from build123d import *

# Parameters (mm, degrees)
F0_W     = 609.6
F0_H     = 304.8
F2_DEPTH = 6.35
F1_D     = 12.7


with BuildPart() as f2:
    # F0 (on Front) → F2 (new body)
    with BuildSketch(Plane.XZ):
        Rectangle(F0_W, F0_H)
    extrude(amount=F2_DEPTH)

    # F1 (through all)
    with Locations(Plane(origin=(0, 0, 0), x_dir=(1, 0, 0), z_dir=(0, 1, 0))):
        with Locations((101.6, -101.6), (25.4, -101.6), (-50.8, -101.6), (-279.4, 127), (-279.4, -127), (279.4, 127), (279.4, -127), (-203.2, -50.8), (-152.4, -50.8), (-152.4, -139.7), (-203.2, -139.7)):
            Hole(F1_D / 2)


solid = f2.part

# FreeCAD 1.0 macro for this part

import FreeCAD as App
import Part
import Sketcher
Q = App.Units.Quantity

doc = App.newDocument("Part")
body = doc.addObject("PartDesign::Body", "Body")

sketch1 = body.newObject("Sketcher::SketchObject", "Sketch")
sketch1.AttachmentSupport = (doc.getObject("XZ_Plane"), [""])
sketch1.MapMode = "FlatFace"
sketch1.addGeometry(Part.LineSegment(App.Vector(-305, 152, 0), App.Vector(-305, -152, 0)), False)
sketch1.addGeometry(Part.LineSegment(App.Vector(-305, -152, 0), App.Vector(305, -152, 0)), False)
sketch1.addGeometry(Part.LineSegment(App.Vector(305, -152, 0), App.Vector(305, 152, 0)), False)
sketch1.addGeometry(Part.LineSegment(App.Vector(305, 152, 0), App.Vector(-305, 152, 0)), False)
sketch1.addConstraint(Sketcher.Constraint("Coincident", 0, 2, 1, 1))
sketch1.addConstraint(Sketcher.Constraint("Coincident", 1, 2, 2, 1))
sketch1.addConstraint(Sketcher.Constraint("Coincident", 2, 2, 3, 1))
sketch1.addConstraint(Sketcher.Constraint("Coincident", 3, 2, 0, 1))
sketch1.addConstraint(Sketcher.Constraint("Vertical", 0))
sketch1.addConstraint(Sketcher.Constraint("Horizontal", 1))
sketch1.addConstraint(Sketcher.Constraint("Vertical", 2))
sketch1.addConstraint(Sketcher.Constraint("Horizontal", 3))
sketch1.addConstraint(Sketcher.Constraint("Symmetric", 0, 2, 2, 2, -1, 1))
sketch1.addConstraint(Sketcher.Constraint("DistanceX", 1, 1, 1, 2, Q("24 in")))
sketch1.addConstraint(Sketcher.Constraint("DistanceY", 0, 2, 0, 1, Q("12 in")))
pad1 = body.newObject("PartDesign::Pad", "Pad")
pad1.Profile = sketch1
pad1.Length = Q("0.25 in")

sketch2 = body.newObject("Sketcher::SketchObject", "Sketch001")
sketch2.AttachmentSupport = (doc.getObject("XZ_Plane"), [""])
sketch2.MapMode = "FlatFace"
sketch2.addGeometry(Part.Circle(App.Vector(102, 102, 0), App.Vector(0, 0, 1), 6), False)
sketch2.addGeometry(Part.Circle(App.Vector(25, 102, 0), App.Vector(0, 0, 1), 6), False)
sketch2.addGeometry(Part.Circle(App.Vector(-51, 102, 0), App.Vector(0, 0, 1), 6), False)
sketch2.addGeometry(Part.Circle(App.Vector(-279, -127, 0), App.Vector(0, 0, 1), 6), False)
sketch2.addGeometry(Part.Circle(App.Vector(-279, 127, 0), App.Vector(0, 0, 1), 6), False)
sketch2.addGeometry(Part.Circle(App.Vector(279, -127, 0), App.Vector(0, 0, 1), 6), False)
sketch2.addGeometry(Part.Circle(App.Vector(279, 127, 0), App.Vector(0, 0, 1), 6), False)
sketch2.addGeometry(Part.Circle(App.Vector(-203, 51, 0), App.Vector(0, 0, 1), 6), False)
sketch2.addGeometry(Part.Circle(App.Vector(-152, 51, 0), App.Vector(0, 0, 1), 6), False)
sketch2.addGeometry(Part.Circle(App.Vector(-152, 140, 0), App.Vector(0, 0, 1), 6), False)
sketch2.addGeometry(Part.Circle(App.Vector(-203, 140, 0), App.Vector(0, 0, 1), 6), False)
sketch2.addConstraint(Sketcher.Constraint("Equal", 0, 1))
sketch2.addConstraint(Sketcher.Constraint("Equal", 1, 2))
sketch2.addConstraint(Sketcher.Constraint("Equal", 2, 3))
sketch2.addConstraint(Sketcher.Constraint("Equal", 3, 4))
sketch2.addConstraint(Sketcher.Constraint("Equal", 4, 5))
sketch2.addConstraint(Sketcher.Constraint("Equal", 5, 6))
sketch2.addConstraint(Sketcher.Constraint("Equal", 6, 7))
sketch2.addConstraint(Sketcher.Constraint("Equal", 7, 8))
sketch2.addConstraint(Sketcher.Constraint("Equal", 8, 9))
sketch2.addConstraint(Sketcher.Constraint("Equal", 9, 10))
sketch2.addConstraint(Sketcher.Constraint("Symmetric", 4, 3, 5, 3, -1, 1))
sketch2.addConstraint(Sketcher.Constraint("Symmetric", 3, 3, 6, 3, -1, 1))
sketch2.addConstraint(Sketcher.Constraint("Symmetric", 3, 3, 5, 3, -2))
sketch2.addConstraint(Sketcher.Constraint("Horizontal", 0, 3, 1, 3))
sketch2.addConstraint(Sketcher.Constraint("Horizontal", 1, 3, 2, 3))
sketch2.addConstraint(Sketcher.Constraint("Horizontal", 7, 3, 8, 3))
sketch2.addConstraint(Sketcher.Constraint("Horizontal", 9, 3, 10, 3))
sketch2.addConstraint(Sketcher.Constraint("Vertical", 8, 3, 9, 3))
sketch2.addConstraint(Sketcher.Constraint("Vertical", 7, 3, 10, 3))
sketch2.addConstraint(Sketcher.Constraint("Diameter", 0, Q("0.5 in")))
sketch2.addConstraint(Sketcher.Constraint("DistanceX", -1, 1, 0, 3, Q("4 in")))
sketch2.addConstraint(Sketcher.Constraint("DistanceY", -1, 1, 0, 3, Q("4 in")))
sketch2.addConstraint(Sketcher.Constraint("DistanceX", -1, 1, 1, 3, Q("1 in")))
sketch2.addConstraint(Sketcher.Constraint("DistanceX", 2, 3, -1, 1, Q("2 in")))
sketch2.addConstraint(Sketcher.Constraint("DistanceX", 3, 3, -1, 1, Q("11 in")))
sketch2.addConstraint(Sketcher.Constraint("DistanceY", 3, 3, -1, 1, Q("5 in")))
sketch2.addConstraint(Sketcher.Constraint("DistanceX", 7, 3, -1, 1, Q("8 in")))
sketch2.addConstraint(Sketcher.Constraint("DistanceY", -1, 1, 7, 3, Q("2 in")))
sketch2.addConstraint(Sketcher.Constraint("DistanceX", 8, 3, -1, 1, Q("6 in")))
sketch2.addConstraint(Sketcher.Constraint("DistanceY", -1, 1, 9, 3, Q("5.5 in")))
doc.recompute()
hole = body.newObject("PartDesign::Hole", "Hole")
hole.Profile = sketch2
hole.ThreadType = "None"
hole.Diameter = Q("0.5 in")
hole.DepthType = "ThroughAll"
hole.Reversed = True

doc.recompute()
